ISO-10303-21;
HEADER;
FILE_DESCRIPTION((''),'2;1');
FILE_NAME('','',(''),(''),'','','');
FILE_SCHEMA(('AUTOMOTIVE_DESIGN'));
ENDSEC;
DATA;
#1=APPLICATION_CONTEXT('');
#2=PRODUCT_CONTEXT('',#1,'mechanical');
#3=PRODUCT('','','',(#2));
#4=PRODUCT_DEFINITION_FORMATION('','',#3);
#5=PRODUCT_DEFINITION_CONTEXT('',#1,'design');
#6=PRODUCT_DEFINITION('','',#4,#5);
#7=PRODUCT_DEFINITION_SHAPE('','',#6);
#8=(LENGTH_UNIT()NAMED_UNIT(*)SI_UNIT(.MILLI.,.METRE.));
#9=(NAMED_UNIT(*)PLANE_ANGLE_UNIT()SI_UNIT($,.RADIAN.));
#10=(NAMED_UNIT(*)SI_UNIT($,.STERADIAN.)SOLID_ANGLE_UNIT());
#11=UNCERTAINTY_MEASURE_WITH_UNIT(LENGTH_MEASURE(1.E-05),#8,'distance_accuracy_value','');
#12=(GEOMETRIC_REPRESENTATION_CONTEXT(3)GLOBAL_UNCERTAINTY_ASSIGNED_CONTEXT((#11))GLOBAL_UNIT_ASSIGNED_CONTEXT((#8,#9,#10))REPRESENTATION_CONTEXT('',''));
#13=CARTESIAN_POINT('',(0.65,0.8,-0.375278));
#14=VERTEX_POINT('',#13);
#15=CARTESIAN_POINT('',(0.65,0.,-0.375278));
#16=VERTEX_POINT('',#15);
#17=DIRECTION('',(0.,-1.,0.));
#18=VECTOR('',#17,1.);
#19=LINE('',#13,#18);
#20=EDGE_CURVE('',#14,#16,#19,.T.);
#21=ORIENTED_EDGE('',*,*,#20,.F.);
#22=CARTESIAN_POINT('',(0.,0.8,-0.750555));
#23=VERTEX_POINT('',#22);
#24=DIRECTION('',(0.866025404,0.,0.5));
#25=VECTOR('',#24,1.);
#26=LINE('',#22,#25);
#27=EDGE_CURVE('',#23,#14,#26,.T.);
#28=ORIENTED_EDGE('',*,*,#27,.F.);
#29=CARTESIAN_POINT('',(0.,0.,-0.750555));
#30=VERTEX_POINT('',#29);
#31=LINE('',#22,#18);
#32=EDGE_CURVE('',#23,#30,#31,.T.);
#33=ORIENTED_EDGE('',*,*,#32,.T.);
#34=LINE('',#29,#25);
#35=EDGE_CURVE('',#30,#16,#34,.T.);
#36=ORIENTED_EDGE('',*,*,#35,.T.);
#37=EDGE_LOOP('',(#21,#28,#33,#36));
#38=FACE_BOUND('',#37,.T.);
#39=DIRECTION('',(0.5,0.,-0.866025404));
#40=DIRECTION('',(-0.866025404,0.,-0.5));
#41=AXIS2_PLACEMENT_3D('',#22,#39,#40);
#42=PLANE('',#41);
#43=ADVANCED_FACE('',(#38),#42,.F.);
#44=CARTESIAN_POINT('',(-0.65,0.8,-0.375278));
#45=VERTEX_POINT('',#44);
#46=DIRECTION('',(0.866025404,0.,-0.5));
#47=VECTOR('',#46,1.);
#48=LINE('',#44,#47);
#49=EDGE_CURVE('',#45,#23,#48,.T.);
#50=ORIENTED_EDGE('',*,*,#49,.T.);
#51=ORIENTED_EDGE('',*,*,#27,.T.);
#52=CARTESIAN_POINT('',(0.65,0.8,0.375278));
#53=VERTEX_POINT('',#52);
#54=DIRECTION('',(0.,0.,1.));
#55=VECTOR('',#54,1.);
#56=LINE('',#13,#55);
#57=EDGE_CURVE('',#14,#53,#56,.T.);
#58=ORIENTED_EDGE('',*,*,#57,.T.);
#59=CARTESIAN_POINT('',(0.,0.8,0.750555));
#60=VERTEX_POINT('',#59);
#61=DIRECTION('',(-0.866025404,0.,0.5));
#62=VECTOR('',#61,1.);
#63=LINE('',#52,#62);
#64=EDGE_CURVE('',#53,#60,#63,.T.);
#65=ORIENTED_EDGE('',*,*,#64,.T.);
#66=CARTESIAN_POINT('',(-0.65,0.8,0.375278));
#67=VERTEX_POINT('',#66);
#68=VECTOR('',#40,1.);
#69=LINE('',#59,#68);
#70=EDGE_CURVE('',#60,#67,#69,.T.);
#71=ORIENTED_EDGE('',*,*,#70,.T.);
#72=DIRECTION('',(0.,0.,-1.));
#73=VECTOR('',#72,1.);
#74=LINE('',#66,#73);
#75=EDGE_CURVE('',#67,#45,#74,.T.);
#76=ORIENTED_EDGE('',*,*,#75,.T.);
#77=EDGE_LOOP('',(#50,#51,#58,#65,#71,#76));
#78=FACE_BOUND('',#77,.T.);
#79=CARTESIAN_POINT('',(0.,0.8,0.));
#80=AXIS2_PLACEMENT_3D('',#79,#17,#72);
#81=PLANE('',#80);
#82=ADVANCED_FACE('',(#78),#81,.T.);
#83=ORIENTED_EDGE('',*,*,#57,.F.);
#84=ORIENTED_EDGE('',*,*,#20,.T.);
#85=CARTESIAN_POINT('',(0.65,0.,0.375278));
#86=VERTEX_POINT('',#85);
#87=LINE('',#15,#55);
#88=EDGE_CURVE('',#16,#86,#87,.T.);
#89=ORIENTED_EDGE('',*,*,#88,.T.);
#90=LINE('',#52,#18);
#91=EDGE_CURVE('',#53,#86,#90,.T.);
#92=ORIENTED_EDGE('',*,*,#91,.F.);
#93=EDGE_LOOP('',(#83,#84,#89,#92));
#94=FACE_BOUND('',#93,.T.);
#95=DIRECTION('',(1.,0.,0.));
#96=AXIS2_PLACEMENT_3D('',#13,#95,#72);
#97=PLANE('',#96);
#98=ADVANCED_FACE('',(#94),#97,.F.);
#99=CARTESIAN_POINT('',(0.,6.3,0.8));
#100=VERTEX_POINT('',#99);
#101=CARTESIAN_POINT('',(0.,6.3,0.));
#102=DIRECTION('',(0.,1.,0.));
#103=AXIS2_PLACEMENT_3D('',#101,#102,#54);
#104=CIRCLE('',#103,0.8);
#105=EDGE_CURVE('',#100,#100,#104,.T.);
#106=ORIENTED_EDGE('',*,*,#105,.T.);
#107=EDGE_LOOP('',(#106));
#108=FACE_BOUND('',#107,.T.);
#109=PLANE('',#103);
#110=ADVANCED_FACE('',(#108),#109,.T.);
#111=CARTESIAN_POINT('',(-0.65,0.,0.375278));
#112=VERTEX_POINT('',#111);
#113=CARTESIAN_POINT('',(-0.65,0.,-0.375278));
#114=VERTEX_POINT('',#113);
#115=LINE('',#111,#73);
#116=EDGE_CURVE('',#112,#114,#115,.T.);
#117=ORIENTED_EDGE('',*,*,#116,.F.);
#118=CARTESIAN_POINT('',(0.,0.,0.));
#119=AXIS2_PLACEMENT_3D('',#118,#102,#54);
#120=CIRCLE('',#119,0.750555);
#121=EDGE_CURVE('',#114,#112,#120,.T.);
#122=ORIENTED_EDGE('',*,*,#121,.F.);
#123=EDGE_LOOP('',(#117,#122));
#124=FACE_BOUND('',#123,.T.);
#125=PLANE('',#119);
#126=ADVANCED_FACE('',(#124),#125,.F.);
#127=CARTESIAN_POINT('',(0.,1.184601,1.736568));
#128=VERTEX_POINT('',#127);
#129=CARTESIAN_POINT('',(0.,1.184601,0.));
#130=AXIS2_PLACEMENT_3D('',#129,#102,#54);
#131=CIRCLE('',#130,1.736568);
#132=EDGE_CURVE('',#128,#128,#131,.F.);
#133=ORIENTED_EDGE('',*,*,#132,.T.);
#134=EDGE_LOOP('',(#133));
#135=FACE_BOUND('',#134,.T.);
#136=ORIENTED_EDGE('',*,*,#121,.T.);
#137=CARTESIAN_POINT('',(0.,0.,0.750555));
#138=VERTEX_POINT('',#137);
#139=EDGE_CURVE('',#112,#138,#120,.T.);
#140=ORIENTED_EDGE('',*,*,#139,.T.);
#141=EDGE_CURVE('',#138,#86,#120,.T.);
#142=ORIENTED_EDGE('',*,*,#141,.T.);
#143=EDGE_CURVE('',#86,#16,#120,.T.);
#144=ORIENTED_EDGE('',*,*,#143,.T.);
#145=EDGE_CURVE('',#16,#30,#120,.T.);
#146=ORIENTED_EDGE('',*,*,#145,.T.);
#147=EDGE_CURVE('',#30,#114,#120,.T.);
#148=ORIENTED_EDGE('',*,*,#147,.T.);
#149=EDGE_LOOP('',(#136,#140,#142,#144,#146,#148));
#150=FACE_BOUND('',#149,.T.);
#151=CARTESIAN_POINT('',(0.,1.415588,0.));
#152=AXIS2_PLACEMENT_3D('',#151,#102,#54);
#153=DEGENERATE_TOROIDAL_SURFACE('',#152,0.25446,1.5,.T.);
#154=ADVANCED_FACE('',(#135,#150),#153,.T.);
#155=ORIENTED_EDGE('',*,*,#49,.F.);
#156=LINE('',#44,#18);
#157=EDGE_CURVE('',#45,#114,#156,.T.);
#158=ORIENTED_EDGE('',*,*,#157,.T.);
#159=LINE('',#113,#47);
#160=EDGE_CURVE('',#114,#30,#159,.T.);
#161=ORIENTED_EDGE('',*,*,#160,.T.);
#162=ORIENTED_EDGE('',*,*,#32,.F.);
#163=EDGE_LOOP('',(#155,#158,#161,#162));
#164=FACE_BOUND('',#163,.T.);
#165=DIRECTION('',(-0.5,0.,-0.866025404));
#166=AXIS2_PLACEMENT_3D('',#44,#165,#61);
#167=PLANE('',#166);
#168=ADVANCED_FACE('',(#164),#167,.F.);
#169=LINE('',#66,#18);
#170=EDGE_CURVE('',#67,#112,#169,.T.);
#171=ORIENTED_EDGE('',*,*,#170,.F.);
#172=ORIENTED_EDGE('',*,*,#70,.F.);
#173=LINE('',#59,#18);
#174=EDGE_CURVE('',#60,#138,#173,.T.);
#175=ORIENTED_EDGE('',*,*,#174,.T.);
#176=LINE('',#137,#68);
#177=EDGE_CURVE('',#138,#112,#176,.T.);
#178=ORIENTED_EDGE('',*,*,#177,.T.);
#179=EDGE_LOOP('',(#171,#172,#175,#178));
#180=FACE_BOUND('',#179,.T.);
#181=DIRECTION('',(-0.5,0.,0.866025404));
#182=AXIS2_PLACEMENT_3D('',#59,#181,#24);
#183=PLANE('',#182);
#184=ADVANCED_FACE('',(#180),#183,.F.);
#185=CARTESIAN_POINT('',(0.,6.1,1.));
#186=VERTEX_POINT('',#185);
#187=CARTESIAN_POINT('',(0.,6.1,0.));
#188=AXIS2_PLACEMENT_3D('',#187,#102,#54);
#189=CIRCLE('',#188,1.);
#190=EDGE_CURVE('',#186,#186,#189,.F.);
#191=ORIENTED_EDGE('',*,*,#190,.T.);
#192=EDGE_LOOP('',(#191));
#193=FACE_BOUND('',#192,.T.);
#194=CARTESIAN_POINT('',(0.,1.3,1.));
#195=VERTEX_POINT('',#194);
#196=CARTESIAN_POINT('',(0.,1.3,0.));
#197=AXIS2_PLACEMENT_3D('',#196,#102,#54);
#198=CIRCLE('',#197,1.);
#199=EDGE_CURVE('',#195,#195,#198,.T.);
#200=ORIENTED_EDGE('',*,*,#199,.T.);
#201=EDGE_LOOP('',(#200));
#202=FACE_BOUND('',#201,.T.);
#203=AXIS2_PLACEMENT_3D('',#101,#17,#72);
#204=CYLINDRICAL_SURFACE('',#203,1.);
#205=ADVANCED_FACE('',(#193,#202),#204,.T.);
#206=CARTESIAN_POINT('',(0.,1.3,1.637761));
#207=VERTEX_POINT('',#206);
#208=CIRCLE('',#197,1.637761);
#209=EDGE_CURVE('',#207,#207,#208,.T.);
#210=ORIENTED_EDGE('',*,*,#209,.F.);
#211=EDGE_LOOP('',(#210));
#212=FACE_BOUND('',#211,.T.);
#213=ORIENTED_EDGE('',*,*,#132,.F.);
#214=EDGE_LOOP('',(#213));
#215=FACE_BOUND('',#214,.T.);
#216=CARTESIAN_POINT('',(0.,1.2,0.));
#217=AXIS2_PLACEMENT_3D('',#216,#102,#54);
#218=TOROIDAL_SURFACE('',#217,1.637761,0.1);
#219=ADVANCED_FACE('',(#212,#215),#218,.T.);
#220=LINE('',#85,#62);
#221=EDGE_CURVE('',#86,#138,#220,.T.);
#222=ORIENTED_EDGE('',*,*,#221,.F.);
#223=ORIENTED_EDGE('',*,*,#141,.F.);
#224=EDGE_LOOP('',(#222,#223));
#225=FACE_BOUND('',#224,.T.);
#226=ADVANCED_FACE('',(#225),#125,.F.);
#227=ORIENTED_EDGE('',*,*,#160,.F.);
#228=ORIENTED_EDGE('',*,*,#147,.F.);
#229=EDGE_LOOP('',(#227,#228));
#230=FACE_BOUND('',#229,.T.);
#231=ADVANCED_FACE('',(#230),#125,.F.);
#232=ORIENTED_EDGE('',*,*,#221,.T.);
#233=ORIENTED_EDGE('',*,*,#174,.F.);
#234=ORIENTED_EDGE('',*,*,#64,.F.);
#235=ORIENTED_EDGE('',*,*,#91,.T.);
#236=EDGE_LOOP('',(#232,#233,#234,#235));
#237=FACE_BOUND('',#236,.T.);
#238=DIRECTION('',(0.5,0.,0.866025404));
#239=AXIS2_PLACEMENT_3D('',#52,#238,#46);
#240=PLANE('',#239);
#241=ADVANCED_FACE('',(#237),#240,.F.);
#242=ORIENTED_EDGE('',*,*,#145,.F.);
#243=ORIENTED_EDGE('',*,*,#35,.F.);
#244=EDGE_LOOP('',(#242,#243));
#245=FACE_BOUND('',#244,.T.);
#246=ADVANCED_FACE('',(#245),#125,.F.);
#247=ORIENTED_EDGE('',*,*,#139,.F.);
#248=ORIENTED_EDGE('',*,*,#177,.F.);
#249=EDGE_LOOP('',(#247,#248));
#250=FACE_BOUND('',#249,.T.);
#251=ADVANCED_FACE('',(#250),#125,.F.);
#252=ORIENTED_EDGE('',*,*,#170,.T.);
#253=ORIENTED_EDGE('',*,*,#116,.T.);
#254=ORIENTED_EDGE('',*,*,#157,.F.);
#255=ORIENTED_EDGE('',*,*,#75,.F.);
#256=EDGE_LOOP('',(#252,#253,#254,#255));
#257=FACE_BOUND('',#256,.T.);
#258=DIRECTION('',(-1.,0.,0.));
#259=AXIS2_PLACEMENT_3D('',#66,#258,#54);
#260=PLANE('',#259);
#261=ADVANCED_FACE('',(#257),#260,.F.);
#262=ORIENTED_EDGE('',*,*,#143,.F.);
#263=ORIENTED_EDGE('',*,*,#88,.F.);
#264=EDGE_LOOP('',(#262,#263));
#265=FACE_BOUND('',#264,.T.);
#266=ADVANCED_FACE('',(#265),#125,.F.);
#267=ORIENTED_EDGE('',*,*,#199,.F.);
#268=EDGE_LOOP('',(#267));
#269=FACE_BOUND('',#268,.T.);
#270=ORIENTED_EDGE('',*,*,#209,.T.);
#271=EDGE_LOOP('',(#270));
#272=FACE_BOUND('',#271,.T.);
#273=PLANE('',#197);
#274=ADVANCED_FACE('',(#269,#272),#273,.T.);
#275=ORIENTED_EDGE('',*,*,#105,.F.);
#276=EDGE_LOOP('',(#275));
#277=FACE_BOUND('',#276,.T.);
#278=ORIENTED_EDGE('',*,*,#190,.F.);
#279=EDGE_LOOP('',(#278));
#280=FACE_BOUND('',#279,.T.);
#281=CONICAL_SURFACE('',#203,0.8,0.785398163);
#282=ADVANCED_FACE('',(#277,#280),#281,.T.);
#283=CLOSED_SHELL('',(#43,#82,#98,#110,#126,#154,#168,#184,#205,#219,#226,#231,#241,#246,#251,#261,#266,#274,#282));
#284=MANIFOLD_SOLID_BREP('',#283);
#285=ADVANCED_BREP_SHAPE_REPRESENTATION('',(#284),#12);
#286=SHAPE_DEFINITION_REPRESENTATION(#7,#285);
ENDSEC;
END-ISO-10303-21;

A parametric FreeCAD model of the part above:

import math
import FreeCAD as App
import Part
import Sketcher

V = App.Vector
Q = App.Units.Quantity


def edges_at(feature, points):
    """Names of the edges that pass closest to the given points."""
    edges = feature.Shape.Edges
    near = lambda p: min(range(len(edges)), key=lambda i: edges[i].distToShape(Part.Vertex(*p))[0])
    return sorted({f"Edge{near(p) + 1}" for p in points})


def add_polygon(sketch, points):
    """Adds a closed chain of lines whose ends are joined by coincident constraints."""
    first, n = sketch.GeometryCount, len(points)
    for a, b in zip(points, points[1:] + points[:1]):
        sketch.addGeometry(Part.LineSegment(App.Vector(*a, 0), App.Vector(*b, 0)), False)
    for i in range(n):
        sketch.addConstraint(Sketcher.Constraint("Coincident", first + i, 2, first + (i + 1) % n, 1))

doc = App.newDocument("Part")
params = doc.addObject("Spreadsheet::Sheet", "Params")
for row, (alias, value) in enumerate([
    ("sketch1_diameter", "3.5 mm"),
    ("pad1_length", "1.3 mm"),
    ("sketch2_diameter", "2 mm"),
    ("pad2_length", "5 mm"),
    ("pocket1_length", "0.8 mm"),
    ("chamfer_size", "0.2 mm"),
    ("sketch4_radius", "1.5 mm"),
    ("sketch4_width", "1.3 mm"),
    ("groove_angle", "360 deg"),
    ("fillet_radius", "0.1 mm"),
], start=1):
    params.set(f"A{row}", alias)
    params.set(f"B{row}", "=" + value)
    params.setAlias(f"B{row}", alias)

body = doc.addObject("PartDesign::Body", "Body")

# Sketch on XZ plane
sketch1 = body.newObject("Sketcher::SketchObject", "Sketch")
sketch1.AttachmentSupport = (doc.getObject("XZ_Plane"), [""])
sketch1.MapMode = "FlatFace"
sketch1.addGeometry(Part.Circle(V(0, 0, 0), V(0, 0, 1), 1.8), False)
sketch1.addConstraint([
    Sketcher.Constraint("Coincident", 0, 3, -1, 1),
    Sketcher.Constraint("Diameter", 0, 3.5),
])
sketch1.setExpression("Constraints[1]", "Params.sketch1_diameter")
pad1 = body.newObject("PartDesign::Pad", "Pad")
pad1.Profile = sketch1
pad1.setExpression("Length", "Params.pad1_length")
pad1.Reversed = True

# Sketch on XZ plane
sketch2 = body.newObject("Sketcher::SketchObject", "Sketch001")
sketch2.AttachmentSupport = (doc.getObject("XZ_Plane"), [""])
sketch2.MapMode = "FlatFace"
sketch2.AttachmentOffset = App.Placement(V(0, 0, -1.3), App.Rotation())
sketch2.addGeometry(Part.Circle(V(0, 0, 0), V(0, 0, 1), 1), False)
sketch2.addConstraint([
    Sketcher.Constraint("Coincident", 0, 3, -1, 1),
    Sketcher.Constraint("Diameter", 0, 2.0),
])
sketch2.setExpression("Constraints[1]", "Params.sketch2_diameter")
pad2 = body.newObject("PartDesign::Pad", "Pad001")
pad2.Profile = sketch2
pad2.setExpression("Length", "Params.pad2_length")
pad2.Reversed = True

# Sketch on XZ plane
sketch3 = body.newObject("Sketcher::SketchObject", "Sketch002")
sketch3.AttachmentSupport = (doc.getObject("XZ_Plane"), [""])
sketch3.MapMode = "FlatFace"
add_polygon(sketch3, [(0, -0.8), (0.7, -0.4), (0.7, 0.4), (0, 0.8), (-0.7, 0.4), (-0.7, -0.4)])  # lines 0-5
sketch3.addConstraint([
    Sketcher.Constraint("Vertical", 1),
    Sketcher.Constraint("Vertical", 4),
    Sketcher.Constraint("Symmetric", 0, 2, 3, 2, -1, 1),
    Sketcher.Constraint("Symmetric", 2, 2, 5, 2, -1, 1),
    Sketcher.Constraint("PointOnObject", 2, 2, -2),
    Sketcher.Constraint("Parallel", 2, 5),
    Sketcher.Constraint("Horizontal", 1, 2, 3, 2),
    Sketcher.Constraint("Angle", 0, Q("30 deg")),
    Sketcher.Constraint("DistanceX", 3, 2, 1, 2, 1.3),
    Sketcher.Constraint("DistanceY", 1, 1, 1, 2, 0.750555),
])
pocket1 = body.newObject("PartDesign::Pocket", "Pocket")
pocket1.Profile = sketch3
pocket1.setExpression("Length", "Params.pocket1_length")
doc.recompute()

chamfer = body.newObject("PartDesign::Chamfer", "Chamfer")
chamfer.Base = (pocket1, edges_at(pocket1, [(0, 6.3, -1)]))
chamfer.setExpression("Size", "Params.chamfer_size")

# Sketch on YZ plane
sketch4 = body.newObject("Sketcher::SketchObject", "Sketch003")
sketch4.AttachmentSupport = (doc.getObject("YZ_Plane"), [""])
sketch4.MapMode = "FlatFace"
sketch4.addGeometry([
    Part.LineSegment(V(0, -1.8, 0), V(1.3, -1.8, 0)),
    Part.ArcOfCircle(Part.Circle(V(1.4, -0.3, 0), V(0, 0, 1), 1.5), math.radians(-161), math.radians(-94)),
    Part.LineSegment(V(0, -0.8, 0), V(0, -1.8, 0)),
], False)
sketch4.addConstraint([
    Sketcher.Constraint("Coincident", 0, 2, 1, 2),
    Sketcher.Constraint("Coincident", 1, 1, 2, 1),
    Sketcher.Constraint("Coincident", 2, 2, 0, 1),
    Sketcher.Constraint("Horizontal", 0),
    Sketcher.Constraint("Vertical", 2),
    Sketcher.Constraint("PointOnObject", 1, 1, -2),
    Sketcher.Constraint("Radius", 1, 1.5),
    Sketcher.Constraint("DistanceX", 0, 1, 0, 2, 1.3),
    Sketcher.Constraint("DistanceY", 0, 2, -1, 1, 1.75),
    Sketcher.Constraint("DistanceY", 2, 2, 2, 1, 0.999445),
])
sketch4.setExpression("Constraints[6]", "Params.sketch4_radius")
sketch4.setExpression("Constraints[7]", "Params.sketch4_width")
groove = body.newObject("PartDesign::Groove", "Groove")
groove.Profile = sketch4
groove.ReferenceAxis = (sketch4, ["H_Axis"])
groove.setExpression("Angle", "Params.groove_angle")
doc.recompute()

fillet = body.newObject("PartDesign::Fillet", "Fillet")
fillet.Base = (groove, edges_at(groove, [(0, 1.3, -1.75)]))
fillet.setExpression("Radius", "Params.fillet_radius")

doc.recompute()
